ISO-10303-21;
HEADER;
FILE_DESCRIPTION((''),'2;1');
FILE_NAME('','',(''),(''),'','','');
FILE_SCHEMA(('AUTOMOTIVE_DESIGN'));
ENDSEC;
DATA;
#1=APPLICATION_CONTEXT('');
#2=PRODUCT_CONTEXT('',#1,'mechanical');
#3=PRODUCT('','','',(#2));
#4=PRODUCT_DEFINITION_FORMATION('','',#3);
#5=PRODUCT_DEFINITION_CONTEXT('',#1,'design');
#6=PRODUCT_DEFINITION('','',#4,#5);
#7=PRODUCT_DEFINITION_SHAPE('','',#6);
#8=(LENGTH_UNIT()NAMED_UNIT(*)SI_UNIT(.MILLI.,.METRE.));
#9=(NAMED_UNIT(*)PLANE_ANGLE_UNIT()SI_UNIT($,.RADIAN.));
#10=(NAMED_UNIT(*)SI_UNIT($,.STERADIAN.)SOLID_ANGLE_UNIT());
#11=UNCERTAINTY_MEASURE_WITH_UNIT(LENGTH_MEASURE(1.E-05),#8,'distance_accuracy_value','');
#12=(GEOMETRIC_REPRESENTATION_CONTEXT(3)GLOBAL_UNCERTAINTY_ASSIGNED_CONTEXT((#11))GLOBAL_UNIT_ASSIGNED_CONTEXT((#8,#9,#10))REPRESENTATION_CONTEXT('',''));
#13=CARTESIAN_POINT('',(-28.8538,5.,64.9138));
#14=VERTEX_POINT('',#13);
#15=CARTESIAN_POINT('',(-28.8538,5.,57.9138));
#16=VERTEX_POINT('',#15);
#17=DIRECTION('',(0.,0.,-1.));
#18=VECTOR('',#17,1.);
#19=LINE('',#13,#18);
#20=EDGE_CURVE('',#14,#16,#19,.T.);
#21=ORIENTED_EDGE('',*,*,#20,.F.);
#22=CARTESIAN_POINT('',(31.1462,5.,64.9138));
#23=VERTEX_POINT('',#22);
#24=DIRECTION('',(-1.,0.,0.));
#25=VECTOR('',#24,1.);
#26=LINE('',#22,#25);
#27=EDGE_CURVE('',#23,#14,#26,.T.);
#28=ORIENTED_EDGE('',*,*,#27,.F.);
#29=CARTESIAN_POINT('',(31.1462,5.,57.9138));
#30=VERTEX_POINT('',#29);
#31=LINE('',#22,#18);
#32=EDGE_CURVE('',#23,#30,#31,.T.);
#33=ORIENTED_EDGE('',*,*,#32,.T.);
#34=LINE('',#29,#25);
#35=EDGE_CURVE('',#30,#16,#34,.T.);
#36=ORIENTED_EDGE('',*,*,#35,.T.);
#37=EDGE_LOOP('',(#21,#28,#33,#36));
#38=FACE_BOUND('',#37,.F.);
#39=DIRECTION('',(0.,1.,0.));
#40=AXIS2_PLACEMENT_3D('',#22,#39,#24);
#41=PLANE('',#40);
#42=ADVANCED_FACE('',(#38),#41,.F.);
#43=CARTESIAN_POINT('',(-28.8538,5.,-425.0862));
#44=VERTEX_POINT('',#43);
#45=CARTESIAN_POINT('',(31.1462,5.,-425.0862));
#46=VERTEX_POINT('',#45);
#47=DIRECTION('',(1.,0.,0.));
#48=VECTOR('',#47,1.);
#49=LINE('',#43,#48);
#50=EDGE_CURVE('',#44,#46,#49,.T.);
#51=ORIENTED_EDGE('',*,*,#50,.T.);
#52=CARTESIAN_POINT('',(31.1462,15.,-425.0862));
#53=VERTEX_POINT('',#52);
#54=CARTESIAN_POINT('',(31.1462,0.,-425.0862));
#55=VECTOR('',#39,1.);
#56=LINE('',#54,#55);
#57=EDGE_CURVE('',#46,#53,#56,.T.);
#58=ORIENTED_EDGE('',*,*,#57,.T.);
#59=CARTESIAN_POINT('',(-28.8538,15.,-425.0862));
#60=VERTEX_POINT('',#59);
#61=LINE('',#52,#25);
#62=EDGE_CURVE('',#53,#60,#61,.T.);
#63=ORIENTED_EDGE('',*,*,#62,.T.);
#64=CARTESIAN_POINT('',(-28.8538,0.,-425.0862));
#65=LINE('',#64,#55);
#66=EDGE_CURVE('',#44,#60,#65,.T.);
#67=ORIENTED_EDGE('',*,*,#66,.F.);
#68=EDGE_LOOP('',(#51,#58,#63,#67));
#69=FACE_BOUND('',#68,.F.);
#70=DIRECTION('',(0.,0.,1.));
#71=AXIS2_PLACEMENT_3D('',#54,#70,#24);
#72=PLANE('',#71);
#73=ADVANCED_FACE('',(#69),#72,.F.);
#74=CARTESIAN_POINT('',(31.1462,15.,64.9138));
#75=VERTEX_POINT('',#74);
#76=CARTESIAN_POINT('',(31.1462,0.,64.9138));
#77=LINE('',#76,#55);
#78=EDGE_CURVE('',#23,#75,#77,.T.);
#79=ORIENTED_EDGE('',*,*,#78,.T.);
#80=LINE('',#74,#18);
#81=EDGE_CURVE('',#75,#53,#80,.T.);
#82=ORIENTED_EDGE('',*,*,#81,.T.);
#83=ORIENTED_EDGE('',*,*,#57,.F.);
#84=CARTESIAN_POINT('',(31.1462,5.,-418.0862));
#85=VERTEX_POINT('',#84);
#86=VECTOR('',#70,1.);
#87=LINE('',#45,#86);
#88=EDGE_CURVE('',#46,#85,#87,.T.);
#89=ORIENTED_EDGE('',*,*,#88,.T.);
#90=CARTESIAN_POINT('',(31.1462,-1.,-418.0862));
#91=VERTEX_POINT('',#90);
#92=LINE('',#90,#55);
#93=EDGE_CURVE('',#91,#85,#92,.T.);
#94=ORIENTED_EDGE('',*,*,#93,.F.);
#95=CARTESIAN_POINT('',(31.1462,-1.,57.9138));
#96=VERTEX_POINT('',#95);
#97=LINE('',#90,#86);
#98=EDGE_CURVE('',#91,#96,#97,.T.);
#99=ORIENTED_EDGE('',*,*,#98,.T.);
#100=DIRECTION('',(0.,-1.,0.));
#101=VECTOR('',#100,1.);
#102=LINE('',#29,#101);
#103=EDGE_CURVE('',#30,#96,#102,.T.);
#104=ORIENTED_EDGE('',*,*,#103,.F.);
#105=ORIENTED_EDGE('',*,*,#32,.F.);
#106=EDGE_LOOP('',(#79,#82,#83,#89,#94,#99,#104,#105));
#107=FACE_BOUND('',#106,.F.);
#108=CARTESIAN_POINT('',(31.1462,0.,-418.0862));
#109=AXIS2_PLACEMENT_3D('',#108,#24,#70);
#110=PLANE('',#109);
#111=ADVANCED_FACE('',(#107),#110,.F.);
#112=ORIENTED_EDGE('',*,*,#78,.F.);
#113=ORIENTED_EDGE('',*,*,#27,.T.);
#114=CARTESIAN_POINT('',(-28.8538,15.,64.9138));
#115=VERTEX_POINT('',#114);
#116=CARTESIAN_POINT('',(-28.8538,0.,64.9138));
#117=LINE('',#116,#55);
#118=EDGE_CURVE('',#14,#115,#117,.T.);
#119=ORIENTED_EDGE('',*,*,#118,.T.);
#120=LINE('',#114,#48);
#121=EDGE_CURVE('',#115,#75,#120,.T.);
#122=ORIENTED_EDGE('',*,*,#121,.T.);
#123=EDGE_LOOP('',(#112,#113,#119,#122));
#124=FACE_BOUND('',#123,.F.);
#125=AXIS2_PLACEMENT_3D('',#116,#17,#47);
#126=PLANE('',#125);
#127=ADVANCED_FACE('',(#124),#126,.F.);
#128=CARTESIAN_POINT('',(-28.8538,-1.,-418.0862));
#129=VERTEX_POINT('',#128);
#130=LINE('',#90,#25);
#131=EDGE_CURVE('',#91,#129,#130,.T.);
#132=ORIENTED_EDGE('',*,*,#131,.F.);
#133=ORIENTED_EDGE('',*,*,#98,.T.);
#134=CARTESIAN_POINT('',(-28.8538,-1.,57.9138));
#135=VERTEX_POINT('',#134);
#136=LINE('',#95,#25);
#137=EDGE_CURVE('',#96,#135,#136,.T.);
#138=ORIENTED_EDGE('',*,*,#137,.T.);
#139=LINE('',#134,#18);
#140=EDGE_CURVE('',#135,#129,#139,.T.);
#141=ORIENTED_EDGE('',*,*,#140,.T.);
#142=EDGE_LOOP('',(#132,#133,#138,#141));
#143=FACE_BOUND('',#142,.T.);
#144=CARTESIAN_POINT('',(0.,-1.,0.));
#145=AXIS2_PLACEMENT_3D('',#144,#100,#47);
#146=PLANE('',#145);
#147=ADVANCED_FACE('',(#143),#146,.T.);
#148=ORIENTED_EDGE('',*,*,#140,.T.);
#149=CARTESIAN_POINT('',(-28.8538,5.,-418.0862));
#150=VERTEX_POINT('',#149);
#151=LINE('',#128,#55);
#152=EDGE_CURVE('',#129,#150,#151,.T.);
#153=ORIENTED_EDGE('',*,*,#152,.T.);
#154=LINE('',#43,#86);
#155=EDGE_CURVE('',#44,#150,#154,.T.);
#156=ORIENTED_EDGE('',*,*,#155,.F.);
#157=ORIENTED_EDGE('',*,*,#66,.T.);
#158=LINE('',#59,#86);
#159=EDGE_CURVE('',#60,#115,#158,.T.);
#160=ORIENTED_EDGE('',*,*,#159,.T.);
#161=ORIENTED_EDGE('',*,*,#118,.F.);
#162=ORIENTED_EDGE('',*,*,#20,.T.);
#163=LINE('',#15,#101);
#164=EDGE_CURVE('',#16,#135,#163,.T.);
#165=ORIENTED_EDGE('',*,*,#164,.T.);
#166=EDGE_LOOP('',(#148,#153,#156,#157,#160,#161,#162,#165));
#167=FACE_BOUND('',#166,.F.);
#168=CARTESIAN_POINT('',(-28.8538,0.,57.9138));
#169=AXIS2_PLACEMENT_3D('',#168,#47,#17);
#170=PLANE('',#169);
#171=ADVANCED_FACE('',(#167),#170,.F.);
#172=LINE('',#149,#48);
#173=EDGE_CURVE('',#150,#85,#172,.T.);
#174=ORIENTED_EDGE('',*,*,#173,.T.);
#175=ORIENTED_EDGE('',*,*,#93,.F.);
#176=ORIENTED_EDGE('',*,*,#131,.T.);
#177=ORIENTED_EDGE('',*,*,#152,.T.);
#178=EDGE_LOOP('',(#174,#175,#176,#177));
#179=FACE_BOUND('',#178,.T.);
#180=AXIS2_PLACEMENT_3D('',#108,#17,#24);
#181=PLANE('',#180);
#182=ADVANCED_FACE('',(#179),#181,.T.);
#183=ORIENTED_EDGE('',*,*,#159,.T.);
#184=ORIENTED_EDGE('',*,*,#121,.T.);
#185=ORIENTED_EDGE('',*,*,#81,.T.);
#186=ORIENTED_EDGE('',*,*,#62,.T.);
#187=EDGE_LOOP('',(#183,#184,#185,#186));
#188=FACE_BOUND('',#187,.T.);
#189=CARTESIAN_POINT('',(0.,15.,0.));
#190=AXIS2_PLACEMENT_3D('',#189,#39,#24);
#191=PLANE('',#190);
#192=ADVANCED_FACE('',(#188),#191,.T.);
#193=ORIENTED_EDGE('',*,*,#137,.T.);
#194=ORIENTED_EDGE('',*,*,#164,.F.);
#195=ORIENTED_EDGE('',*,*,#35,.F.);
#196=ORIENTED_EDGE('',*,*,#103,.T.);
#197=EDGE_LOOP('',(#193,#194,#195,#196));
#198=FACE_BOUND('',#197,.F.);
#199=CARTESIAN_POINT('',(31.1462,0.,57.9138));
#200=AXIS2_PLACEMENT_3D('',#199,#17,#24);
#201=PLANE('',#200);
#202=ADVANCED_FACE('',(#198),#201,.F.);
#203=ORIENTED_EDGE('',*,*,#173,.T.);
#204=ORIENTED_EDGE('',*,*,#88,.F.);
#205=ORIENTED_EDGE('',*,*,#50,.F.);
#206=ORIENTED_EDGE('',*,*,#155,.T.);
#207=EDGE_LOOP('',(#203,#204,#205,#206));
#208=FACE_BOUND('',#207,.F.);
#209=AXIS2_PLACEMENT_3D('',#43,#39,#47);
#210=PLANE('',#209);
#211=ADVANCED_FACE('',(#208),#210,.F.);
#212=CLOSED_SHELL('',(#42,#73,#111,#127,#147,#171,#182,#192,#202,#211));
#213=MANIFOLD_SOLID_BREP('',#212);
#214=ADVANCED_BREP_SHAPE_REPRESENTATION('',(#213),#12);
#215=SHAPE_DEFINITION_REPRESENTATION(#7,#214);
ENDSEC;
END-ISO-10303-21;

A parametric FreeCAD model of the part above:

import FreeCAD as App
import Part
import Sketcher
from FreeCAD import Vector
Q = App.Units.Quantity


def add_polygon(sketch, points):
    """Adds a closed chain of lines whose ends are joined by coincident constraints."""
    first, n = sketch.GeometryCount, len(points)
    for a, b in zip(points, points[1:] + points[:1]):
        sketch.addGeometry(Part.LineSegment(App.Vector(*a, 0), App.Vector(*b, 0)), False)
    for i in range(n):
        sketch.addConstraint(Sketcher.Constraint("Coincident", first + i, 2, first + (i + 1) % n, 1))

doc = App.newDocument("Part")
params = doc.addObject("Spreadsheet::Sheet", "Params")
for row, (alias, value) in enumerate([
    ("sketch1_width", "60 mm"),
    ("sketch1_height", "490 mm"),
    ("pad1_length", "15 mm"),
    ("sketch2_width", "60 mm"),
    ("sketch2_height", "5 mm"),
    ("pocket1_length", "7 mm"),
    ("sketch3_width", "60 mm"),
    ("sketch3_height", "5 mm"),
    ("pocket2_length", "7 mm"),
    ("sketch4_width", "60 mm"),
    ("sketch4_height", "476 mm"),
    ("pad2_length", "1 mm"),
], start=1):
    params.set(f"A{row}", alias)
    params.set(f"B{row}", "=" + value)
    params.setAlias(f"B{row}", alias)

body = doc.addObject("PartDesign::Body", "Body")

sketch1 = doc.addObject("Sketcher::SketchObject", "Sketch")
body.addObject(sketch1)
sketch1.AttachmentSupport = (doc.XZ_Plane, [""])
sketch1.MapMode = "FlatFace"
add_polygon(sketch1, [(-29, -425), (-29, 65), (31, 65), (31, -425)])
sketch1.addConstraint(Sketcher.Constraint("Vertical", 0))
sketch1.addConstraint(Sketcher.Constraint("Horizontal", 1))
sketch1.addConstraint(Sketcher.Constraint("Vertical", 2))
sketch1.addConstraint(Sketcher.Constraint("Horizontal", 3))
sketch1.addConstraint(Sketcher.Constraint("DistanceX", 1, 1, 1, 2, Q("60 mm")))
sketch1.addConstraint(Sketcher.Constraint("DistanceY", 0, 1, 0, 2, Q("490 mm")))
sketch1.addConstraint(Sketcher.Constraint("DistanceX", 0, 2, -1, 1, Q("28.8538 mm")))
sketch1.addConstraint(Sketcher.Constraint("DistanceY", -1, 1, 0, 2, Q("64.9138 mm")))
sketch1.setExpression("Constraints[8]", "Params.sketch1_width")
sketch1.setExpression("Constraints[9]", "Params.sketch1_height")
pad1 = doc.addObject("PartDesign::Pad", "Pad")
body.addObject(pad1)
pad1.Profile = sketch1
pad1.setExpression("Length", "Params.pad1_length")
pad1.Reversed = True

sketch2 = doc.addObject("Sketcher::SketchObject", "Sketch001")
body.addObject(sketch2)
sketch2.AttachmentSupport = (doc.XY_Plane, [""])
sketch2.MapMode = "FlatFace"
sketch2.AttachmentOffset = App.Placement(Vector(0, 0, 64.9138), App.Rotation())
add_polygon(sketch2, [(-29, 0), (31, 0), (31, 5), (-29, 5)])
sketch2.addConstraint(Sketcher.Constraint("Horizontal", 0))
sketch2.addConstraint(Sketcher.Constraint("Vertical", 1))
sketch2.addConstraint(Sketcher.Constraint("Horizontal", 2))
sketch2.addConstraint(Sketcher.Constraint("Vertical", 3))
sketch2.addConstraint(Sketcher.Constraint("PointOnObject", 0, 2, -1))
sketch2.addConstraint(Sketcher.Constraint("DistanceX", 0, 1, 0, 2, Q("60 mm")))
sketch2.addConstraint(Sketcher.Constraint("DistanceY", 1, 1, 1, 2, Q("5 mm")))
sketch2.addConstraint(Sketcher.Constraint("DistanceX", -1, 1, 0, 2, Q("31.1462 mm")))
sketch2.setExpression("Constraints[9]", "Params.sketch2_width")
sketch2.setExpression("Constraints[10]", "Params.sketch2_height")
pocket1 = doc.addObject("PartDesign::Pocket", "Pocket")
body.addObject(pocket1)
pocket1.Profile = sketch2
pocket1.setExpression("Length", "Params.pocket1_length")

sketch3 = doc.addObject("Sketcher::SketchObject", "Sketch002")
body.addObject(sketch3)
sketch3.AttachmentSupport = (doc.XY_Plane, [""])
sketch3.MapMode = "FlatFace"
sketch3.AttachmentOffset = App.Placement(Vector(0, 0, -425.0862), App.Rotation())
add_polygon(sketch3, [(31, 5), (31, 0), (-29, 0), (-29, 5)])
sketch3.addConstraint(Sketcher.Constraint("Vertical", 0))
sketch3.addConstraint(Sketcher.Constraint("Horizontal", 1))
sketch3.addConstraint(Sketcher.Constraint("Vertical", 2))
sketch3.addConstraint(Sketcher.Constraint("Horizontal", 3))
sketch3.addConstraint(Sketcher.Constraint("PointOnObject", 0, 2, -1))
sketch3.addConstraint(Sketcher.Constraint("DistanceX", 1, 2, 1, 1, Q("60 mm")))
sketch3.addConstraint(Sketcher.Constraint("DistanceY", 0, 2, 0, 1, Q("5 mm")))
sketch3.addConstraint(Sketcher.Constraint("DistanceX", -1, 1, 0, 2, Q("31.1462 mm")))
sketch3.setExpression("Constraints[9]", "Params.sketch3_width")
sketch3.setExpression("Constraints[10]", "Params.sketch3_height")
pocket2 = doc.addObject("PartDesign::Pocket", "Pocket001")
body.addObject(pocket2)
pocket2.Profile = sketch3
pocket2.setExpression("Length", "Params.pocket2_length")
pocket2.Reversed = True

sketch4 = doc.addObject("Sketcher::SketchObject", "Sketch003")
body.addObject(sketch4)
sketch4.AttachmentSupport = (doc.XZ_Plane, [""])
sketch4.MapMode = "FlatFace"
add_polygon(sketch4, [(31, -418), (31, 58), (-29, 58), (-29, -418)])
sketch4.addConstraint(Sketcher.Constraint("Vertical", 0))
sketch4.addConstraint(Sketcher.Constraint("Horizontal", 1))
sketch4.addConstraint(Sketcher.Constraint("Vertical", 2))
sketch4.addConstraint(Sketcher.Constraint("Horizontal", 3))
sketch4.addConstraint(Sketcher.Constraint("DistanceX", 1, 2, 1, 1, Q("60 mm")))
sketch4.addConstraint(Sketcher.Constraint("DistanceY", 0, 1, 0, 2, Q("476 mm")))
sketch4.addConstraint(Sketcher.Constraint("DistanceX", -1, 1, 0, 2, Q("31.1462 mm")))
sketch4.addConstraint(Sketcher.Constraint("DistanceY", -1, 1, 0, 2, Q("57.9138 mm")))
sketch4.setExpression("Constraints[8]", "Params.sketch4_width")
sketch4.setExpression("Constraints[9]", "Params.sketch4_height")
pad2 = doc.addObject("PartDesign::Pad", "Pad001")
body.addObject(pad2)
pad2.Profile = sketch4
pad2.setExpression("Length", "Params.pad2_length")

doc.recompute()
